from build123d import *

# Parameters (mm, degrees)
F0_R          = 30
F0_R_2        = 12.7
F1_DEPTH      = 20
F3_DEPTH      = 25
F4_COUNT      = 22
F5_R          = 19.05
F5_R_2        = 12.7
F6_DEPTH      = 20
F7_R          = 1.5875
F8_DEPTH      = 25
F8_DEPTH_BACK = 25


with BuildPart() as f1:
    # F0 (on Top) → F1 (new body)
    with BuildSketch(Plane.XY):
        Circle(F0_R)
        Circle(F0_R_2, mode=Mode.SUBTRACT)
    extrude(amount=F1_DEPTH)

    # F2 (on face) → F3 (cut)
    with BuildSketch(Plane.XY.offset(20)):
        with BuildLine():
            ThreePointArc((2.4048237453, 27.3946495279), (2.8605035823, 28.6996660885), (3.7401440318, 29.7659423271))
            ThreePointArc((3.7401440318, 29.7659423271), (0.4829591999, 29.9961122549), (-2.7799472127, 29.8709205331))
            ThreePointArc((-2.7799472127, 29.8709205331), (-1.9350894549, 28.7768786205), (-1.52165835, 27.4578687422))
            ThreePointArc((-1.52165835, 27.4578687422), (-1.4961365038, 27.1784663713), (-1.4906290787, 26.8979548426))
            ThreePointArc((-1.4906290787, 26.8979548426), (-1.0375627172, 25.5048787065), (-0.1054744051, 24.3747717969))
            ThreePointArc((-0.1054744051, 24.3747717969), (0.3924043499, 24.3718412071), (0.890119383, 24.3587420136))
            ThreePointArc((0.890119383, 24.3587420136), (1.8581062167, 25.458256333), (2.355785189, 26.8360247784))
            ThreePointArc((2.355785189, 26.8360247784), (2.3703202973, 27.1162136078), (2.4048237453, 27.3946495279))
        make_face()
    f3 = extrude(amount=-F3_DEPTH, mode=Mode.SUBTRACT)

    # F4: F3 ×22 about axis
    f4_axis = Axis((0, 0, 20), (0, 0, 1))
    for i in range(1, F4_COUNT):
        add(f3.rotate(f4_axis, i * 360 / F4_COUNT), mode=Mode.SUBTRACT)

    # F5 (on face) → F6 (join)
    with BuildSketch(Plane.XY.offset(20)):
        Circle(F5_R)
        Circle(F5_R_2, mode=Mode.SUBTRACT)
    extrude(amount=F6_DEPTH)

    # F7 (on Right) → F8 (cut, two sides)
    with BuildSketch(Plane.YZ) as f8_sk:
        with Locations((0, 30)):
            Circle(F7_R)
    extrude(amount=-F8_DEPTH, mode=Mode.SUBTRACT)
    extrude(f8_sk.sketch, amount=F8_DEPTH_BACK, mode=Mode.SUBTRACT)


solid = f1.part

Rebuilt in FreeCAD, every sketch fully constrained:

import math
import FreeCAD as App
import Part
import Sketcher
from FreeCAD import Vector

doc = App.newDocument("Part")
params = doc.addObject("Spreadsheet::Sheet", "Params")
for row, (alias, value) in enumerate([
    ("sketch1_diameter", "60 mm"),
    ("sketch1_diameter2", "25.4 mm"),
    ("pad1_length", "20 mm"),
    ("sketch2_radius", "30 mm"),
    ("pocket1_length", "25 mm"),
    ("sketch3_diameter", "38.1 mm"),
    ("sketch3_diameter2", "25.4 mm"),
    ("pad2_length", "20 mm"),
], start=1):
    params.set(f"A{row}", alias)
    params.set(f"B{row}", "=" + value)
    params.setAlias(f"B{row}", alias)

body = doc.addObject("PartDesign::Body", "Body")

# Sketch on XY plane
sketch1 = body.newObject("Sketcher::SketchObject", "Sketch")
sketch1.AttachmentSupport = (doc.getObject("XY_Plane"), [""])
sketch1.MapMode = "FlatFace"
sketch1.addGeometry([
    Part.Circle(Vector(0, 0, 0), Vector(0, 0, 1), 30),
    Part.Circle(Vector(0, 0, 0), Vector(0, 0, 1), 13),
], False)
sketch1.addConstraint([
    Sketcher.Constraint("Coincident", 0, 3, -1, 1),
    Sketcher.Constraint("Coincident", 1, 3, -1, 1),
    Sketcher.Constraint("Diameter", 0, 60.0),
    Sketcher.Constraint("Diameter", 1, 25.4),
])
sketch1.setExpression("Constraints[2]", "Params.sketch1_diameter")
sketch1.setExpression("Constraints[3]", "Params.sketch1_diameter2")
pad1 = body.newObject("PartDesign::Pad", "Pad")
pad1.Profile = sketch1
pad1.setExpression("Length", "Params.pad1_length")

# Sketch on XY plane
sketch2 = body.newObject("Sketcher::SketchObject", "Sketch001")
sketch2.AttachmentSupport = (doc.getObject("XY_Plane"), [""])
sketch2.MapMode = "FlatFace"
sketch2.AttachmentOffset = App.Placement(Vector(0, 0, 20), App.Rotation())
sketch2.addGeometry([
    Part.ArcOfCircle(Part.Circle(Vector(6.3, 26.8, 0), Vector(0, 0, 1), 3.9), math.radians(130), math.radians(171)),  # 0
    Part.ArcOfCircle(Part.Circle(Vector(0, 0, 0), Vector(0, 0, 1), 30), math.radians(82.84), math.radians(95.32)),  # 1
    Part.ArcOfCircle(Part.Circle(Vector(-5.4, 27, 0), Vector(0, 0, 1), 3.9), math.radians(7), math.radians(48)),  # 2
    Part.ArcOfCircle(Part.Circle(Vector(-5.4, 27, 0), Vector(0, 0, 1), 3.9), math.radians(-0.92), math.radians(7.27)),  # 3
    Part.ArcOfCircle(Part.Circle(Vector(2.4, 27.4, 0), Vector(0, 0, 1), 3.9), math.radians(-173), math.radians(-130)),  # 4
    Part.ArcOfCircle(Part.Circle(Vector(0, 0, 0), Vector(0, 0, 1), 24.4), math.radians(87.91), math.radians(90.25)),  # 5
    Part.ArcOfCircle(Part.Circle(Vector(-1.5, 27.5, 0), Vector(0, 0, 1), 3.9), math.radians(-52), math.radians(-9)),  # 6
    Part.ArcOfCircle(Part.Circle(Vector(6.3, 26.8, 0), Vector(0, 0, 1), 3.9), math.radians(170.89), math.radians(179.08)),  # 7
], False)
sketch2.addConstraint([
    Sketcher.Constraint("Coincident", 0, 1, 1, 1),
    Sketcher.Constraint("Coincident", 1, 2, 2, 2),
    Sketcher.Constraint("Tangent", 2, 1, 3, 2),
    Sketcher.Constraint("Coincident", 3, 1, 4, 1),
    Sketcher.Constraint("Coincident", 4, 2, 5, 2),
    Sketcher.Constraint("Coincident", 5, 1, 6, 1),
    Sketcher.Constraint("Coincident", 6, 2, 7, 2),
    Sketcher.Constraint("Tangent", 7, 1, 0, 2),
    Sketcher.Constraint("Coincident", 1, 3, -1, 1),
    Sketcher.Constraint("Coincident", 5, 3, -1, 1),
    Sketcher.Constraint("Coincident", 2, 1, 6, 3),
    Sketcher.Constraint("Coincident", 7, 1, 4, 3),
    Sketcher.Constraint("Equal", 0, 2),
    Sketcher.Constraint("Equal", 2, 3),
    Sketcher.Constraint("Equal", 3, 4),
    Sketcher.Constraint("Equal", 4, 6),
    Sketcher.Constraint("Equal", 6, 7),
    Sketcher.Constraint("Radius", 1, 30.0),
    Sketcher.Constraint("Radius", 5, 24.375),
    Sketcher.Constraint("Radius", 0, 3.926991),
    Sketcher.Constraint("DistanceX", 4, 2, 4, 3, 2.510298),
    Sketcher.Constraint("DistanceX", 2, 3, -1, 1, 5.417111),
    Sketcher.Constraint("DistanceX", 6, 3, -1, 1, 1.521658),
    Sketcher.Constraint("DistanceY", -1, 1, 6, 3, 27.457869),
    Sketcher.Constraint("DistanceX", 3, 1, -1, 1, 1.490629),
    Sketcher.Constraint("DistanceX", 2, 3, 0, 3, 11.699378),
])
sketch2.setExpression("Constraints[17]", "Params.sketch2_radius")
pocket1 = body.newObject("PartDesign::Pocket", "Pocket")
pocket1.Profile = sketch2
pocket1.setExpression("Length", "Params.pocket1_length")
doc.recompute()

polarpattern = body.newObject("PartDesign::PolarPattern", "PolarPattern")
polarpattern.Originals = [pocket1]
polarpattern.Axis = (doc.getObject("Z_Axis"), [""])
polarpattern.Angle = 360
polarpattern.Occurrences = 22
body.Tip = polarpattern

# Sketch on XY plane
sketch3 = body.newObject("Sketcher::SketchObject", "Sketch002")
sketch3.AttachmentSupport = (doc.getObject("XY_Plane"), [""])
sketch3.MapMode = "FlatFace"
sketch3.AttachmentOffset = App.Placement(Vector(0, 0, 20), App.Rotation())
sketch3.addGeometry([
    Part.Circle(Vector(0, 0, 0), Vector(0, 0, 1), 19),
    Part.Circle(Vector(0, 0, 0), Vector(0, 0, 1), 13),
], False)
sketch3.addConstraint([
    Sketcher.Constraint("Coincident", 0, 3, -1, 1),
    Sketcher.Constraint("Coincident", 1, 3, -1, 1),
    Sketcher.Constraint("Diameter", 0, 38.1),
    Sketcher.Constraint("Diameter", 1, 25.4),
])
sketch3.setExpression("Constraints[2]", "Params.sketch3_diameter")
sketch3.setExpression("Constraints[3]", "Params.sketch3_diameter2")
pad2 = body.newObject("PartDesign::Pad", "Pad001")
pad2.Profile = sketch3
pad2.setExpression("Length", "Params.pad2_length")

# Sketch on YZ plane
sketch4 = body.newObject("Sketcher::SketchObject", "Sketch003")
sketch4.AttachmentSupport = (doc.getObject("YZ_Plane"), [""])
sketch4.MapMode = "FlatFace"
sketch4.addGeometry(Part.Circle(Vector(0, 30, 0), Vector(0, 0, 1), 1.6), False)
sketch4.addConstraint([
    Sketcher.Constraint("PointOnObject", 0, 3, -2),
    Sketcher.Constraint("Diameter", 0, 3.175),
    Sketcher.Constraint("DistanceY", -1, 1, 0, 3, 30.0),
])
pocket2 = body.newObject("PartDesign::Pocket", "Pocket001")
pocket2.Profile = sketch4
pocket2.Type = "ThroughAll"
pocket2.Midplane = True

doc.recompute()
